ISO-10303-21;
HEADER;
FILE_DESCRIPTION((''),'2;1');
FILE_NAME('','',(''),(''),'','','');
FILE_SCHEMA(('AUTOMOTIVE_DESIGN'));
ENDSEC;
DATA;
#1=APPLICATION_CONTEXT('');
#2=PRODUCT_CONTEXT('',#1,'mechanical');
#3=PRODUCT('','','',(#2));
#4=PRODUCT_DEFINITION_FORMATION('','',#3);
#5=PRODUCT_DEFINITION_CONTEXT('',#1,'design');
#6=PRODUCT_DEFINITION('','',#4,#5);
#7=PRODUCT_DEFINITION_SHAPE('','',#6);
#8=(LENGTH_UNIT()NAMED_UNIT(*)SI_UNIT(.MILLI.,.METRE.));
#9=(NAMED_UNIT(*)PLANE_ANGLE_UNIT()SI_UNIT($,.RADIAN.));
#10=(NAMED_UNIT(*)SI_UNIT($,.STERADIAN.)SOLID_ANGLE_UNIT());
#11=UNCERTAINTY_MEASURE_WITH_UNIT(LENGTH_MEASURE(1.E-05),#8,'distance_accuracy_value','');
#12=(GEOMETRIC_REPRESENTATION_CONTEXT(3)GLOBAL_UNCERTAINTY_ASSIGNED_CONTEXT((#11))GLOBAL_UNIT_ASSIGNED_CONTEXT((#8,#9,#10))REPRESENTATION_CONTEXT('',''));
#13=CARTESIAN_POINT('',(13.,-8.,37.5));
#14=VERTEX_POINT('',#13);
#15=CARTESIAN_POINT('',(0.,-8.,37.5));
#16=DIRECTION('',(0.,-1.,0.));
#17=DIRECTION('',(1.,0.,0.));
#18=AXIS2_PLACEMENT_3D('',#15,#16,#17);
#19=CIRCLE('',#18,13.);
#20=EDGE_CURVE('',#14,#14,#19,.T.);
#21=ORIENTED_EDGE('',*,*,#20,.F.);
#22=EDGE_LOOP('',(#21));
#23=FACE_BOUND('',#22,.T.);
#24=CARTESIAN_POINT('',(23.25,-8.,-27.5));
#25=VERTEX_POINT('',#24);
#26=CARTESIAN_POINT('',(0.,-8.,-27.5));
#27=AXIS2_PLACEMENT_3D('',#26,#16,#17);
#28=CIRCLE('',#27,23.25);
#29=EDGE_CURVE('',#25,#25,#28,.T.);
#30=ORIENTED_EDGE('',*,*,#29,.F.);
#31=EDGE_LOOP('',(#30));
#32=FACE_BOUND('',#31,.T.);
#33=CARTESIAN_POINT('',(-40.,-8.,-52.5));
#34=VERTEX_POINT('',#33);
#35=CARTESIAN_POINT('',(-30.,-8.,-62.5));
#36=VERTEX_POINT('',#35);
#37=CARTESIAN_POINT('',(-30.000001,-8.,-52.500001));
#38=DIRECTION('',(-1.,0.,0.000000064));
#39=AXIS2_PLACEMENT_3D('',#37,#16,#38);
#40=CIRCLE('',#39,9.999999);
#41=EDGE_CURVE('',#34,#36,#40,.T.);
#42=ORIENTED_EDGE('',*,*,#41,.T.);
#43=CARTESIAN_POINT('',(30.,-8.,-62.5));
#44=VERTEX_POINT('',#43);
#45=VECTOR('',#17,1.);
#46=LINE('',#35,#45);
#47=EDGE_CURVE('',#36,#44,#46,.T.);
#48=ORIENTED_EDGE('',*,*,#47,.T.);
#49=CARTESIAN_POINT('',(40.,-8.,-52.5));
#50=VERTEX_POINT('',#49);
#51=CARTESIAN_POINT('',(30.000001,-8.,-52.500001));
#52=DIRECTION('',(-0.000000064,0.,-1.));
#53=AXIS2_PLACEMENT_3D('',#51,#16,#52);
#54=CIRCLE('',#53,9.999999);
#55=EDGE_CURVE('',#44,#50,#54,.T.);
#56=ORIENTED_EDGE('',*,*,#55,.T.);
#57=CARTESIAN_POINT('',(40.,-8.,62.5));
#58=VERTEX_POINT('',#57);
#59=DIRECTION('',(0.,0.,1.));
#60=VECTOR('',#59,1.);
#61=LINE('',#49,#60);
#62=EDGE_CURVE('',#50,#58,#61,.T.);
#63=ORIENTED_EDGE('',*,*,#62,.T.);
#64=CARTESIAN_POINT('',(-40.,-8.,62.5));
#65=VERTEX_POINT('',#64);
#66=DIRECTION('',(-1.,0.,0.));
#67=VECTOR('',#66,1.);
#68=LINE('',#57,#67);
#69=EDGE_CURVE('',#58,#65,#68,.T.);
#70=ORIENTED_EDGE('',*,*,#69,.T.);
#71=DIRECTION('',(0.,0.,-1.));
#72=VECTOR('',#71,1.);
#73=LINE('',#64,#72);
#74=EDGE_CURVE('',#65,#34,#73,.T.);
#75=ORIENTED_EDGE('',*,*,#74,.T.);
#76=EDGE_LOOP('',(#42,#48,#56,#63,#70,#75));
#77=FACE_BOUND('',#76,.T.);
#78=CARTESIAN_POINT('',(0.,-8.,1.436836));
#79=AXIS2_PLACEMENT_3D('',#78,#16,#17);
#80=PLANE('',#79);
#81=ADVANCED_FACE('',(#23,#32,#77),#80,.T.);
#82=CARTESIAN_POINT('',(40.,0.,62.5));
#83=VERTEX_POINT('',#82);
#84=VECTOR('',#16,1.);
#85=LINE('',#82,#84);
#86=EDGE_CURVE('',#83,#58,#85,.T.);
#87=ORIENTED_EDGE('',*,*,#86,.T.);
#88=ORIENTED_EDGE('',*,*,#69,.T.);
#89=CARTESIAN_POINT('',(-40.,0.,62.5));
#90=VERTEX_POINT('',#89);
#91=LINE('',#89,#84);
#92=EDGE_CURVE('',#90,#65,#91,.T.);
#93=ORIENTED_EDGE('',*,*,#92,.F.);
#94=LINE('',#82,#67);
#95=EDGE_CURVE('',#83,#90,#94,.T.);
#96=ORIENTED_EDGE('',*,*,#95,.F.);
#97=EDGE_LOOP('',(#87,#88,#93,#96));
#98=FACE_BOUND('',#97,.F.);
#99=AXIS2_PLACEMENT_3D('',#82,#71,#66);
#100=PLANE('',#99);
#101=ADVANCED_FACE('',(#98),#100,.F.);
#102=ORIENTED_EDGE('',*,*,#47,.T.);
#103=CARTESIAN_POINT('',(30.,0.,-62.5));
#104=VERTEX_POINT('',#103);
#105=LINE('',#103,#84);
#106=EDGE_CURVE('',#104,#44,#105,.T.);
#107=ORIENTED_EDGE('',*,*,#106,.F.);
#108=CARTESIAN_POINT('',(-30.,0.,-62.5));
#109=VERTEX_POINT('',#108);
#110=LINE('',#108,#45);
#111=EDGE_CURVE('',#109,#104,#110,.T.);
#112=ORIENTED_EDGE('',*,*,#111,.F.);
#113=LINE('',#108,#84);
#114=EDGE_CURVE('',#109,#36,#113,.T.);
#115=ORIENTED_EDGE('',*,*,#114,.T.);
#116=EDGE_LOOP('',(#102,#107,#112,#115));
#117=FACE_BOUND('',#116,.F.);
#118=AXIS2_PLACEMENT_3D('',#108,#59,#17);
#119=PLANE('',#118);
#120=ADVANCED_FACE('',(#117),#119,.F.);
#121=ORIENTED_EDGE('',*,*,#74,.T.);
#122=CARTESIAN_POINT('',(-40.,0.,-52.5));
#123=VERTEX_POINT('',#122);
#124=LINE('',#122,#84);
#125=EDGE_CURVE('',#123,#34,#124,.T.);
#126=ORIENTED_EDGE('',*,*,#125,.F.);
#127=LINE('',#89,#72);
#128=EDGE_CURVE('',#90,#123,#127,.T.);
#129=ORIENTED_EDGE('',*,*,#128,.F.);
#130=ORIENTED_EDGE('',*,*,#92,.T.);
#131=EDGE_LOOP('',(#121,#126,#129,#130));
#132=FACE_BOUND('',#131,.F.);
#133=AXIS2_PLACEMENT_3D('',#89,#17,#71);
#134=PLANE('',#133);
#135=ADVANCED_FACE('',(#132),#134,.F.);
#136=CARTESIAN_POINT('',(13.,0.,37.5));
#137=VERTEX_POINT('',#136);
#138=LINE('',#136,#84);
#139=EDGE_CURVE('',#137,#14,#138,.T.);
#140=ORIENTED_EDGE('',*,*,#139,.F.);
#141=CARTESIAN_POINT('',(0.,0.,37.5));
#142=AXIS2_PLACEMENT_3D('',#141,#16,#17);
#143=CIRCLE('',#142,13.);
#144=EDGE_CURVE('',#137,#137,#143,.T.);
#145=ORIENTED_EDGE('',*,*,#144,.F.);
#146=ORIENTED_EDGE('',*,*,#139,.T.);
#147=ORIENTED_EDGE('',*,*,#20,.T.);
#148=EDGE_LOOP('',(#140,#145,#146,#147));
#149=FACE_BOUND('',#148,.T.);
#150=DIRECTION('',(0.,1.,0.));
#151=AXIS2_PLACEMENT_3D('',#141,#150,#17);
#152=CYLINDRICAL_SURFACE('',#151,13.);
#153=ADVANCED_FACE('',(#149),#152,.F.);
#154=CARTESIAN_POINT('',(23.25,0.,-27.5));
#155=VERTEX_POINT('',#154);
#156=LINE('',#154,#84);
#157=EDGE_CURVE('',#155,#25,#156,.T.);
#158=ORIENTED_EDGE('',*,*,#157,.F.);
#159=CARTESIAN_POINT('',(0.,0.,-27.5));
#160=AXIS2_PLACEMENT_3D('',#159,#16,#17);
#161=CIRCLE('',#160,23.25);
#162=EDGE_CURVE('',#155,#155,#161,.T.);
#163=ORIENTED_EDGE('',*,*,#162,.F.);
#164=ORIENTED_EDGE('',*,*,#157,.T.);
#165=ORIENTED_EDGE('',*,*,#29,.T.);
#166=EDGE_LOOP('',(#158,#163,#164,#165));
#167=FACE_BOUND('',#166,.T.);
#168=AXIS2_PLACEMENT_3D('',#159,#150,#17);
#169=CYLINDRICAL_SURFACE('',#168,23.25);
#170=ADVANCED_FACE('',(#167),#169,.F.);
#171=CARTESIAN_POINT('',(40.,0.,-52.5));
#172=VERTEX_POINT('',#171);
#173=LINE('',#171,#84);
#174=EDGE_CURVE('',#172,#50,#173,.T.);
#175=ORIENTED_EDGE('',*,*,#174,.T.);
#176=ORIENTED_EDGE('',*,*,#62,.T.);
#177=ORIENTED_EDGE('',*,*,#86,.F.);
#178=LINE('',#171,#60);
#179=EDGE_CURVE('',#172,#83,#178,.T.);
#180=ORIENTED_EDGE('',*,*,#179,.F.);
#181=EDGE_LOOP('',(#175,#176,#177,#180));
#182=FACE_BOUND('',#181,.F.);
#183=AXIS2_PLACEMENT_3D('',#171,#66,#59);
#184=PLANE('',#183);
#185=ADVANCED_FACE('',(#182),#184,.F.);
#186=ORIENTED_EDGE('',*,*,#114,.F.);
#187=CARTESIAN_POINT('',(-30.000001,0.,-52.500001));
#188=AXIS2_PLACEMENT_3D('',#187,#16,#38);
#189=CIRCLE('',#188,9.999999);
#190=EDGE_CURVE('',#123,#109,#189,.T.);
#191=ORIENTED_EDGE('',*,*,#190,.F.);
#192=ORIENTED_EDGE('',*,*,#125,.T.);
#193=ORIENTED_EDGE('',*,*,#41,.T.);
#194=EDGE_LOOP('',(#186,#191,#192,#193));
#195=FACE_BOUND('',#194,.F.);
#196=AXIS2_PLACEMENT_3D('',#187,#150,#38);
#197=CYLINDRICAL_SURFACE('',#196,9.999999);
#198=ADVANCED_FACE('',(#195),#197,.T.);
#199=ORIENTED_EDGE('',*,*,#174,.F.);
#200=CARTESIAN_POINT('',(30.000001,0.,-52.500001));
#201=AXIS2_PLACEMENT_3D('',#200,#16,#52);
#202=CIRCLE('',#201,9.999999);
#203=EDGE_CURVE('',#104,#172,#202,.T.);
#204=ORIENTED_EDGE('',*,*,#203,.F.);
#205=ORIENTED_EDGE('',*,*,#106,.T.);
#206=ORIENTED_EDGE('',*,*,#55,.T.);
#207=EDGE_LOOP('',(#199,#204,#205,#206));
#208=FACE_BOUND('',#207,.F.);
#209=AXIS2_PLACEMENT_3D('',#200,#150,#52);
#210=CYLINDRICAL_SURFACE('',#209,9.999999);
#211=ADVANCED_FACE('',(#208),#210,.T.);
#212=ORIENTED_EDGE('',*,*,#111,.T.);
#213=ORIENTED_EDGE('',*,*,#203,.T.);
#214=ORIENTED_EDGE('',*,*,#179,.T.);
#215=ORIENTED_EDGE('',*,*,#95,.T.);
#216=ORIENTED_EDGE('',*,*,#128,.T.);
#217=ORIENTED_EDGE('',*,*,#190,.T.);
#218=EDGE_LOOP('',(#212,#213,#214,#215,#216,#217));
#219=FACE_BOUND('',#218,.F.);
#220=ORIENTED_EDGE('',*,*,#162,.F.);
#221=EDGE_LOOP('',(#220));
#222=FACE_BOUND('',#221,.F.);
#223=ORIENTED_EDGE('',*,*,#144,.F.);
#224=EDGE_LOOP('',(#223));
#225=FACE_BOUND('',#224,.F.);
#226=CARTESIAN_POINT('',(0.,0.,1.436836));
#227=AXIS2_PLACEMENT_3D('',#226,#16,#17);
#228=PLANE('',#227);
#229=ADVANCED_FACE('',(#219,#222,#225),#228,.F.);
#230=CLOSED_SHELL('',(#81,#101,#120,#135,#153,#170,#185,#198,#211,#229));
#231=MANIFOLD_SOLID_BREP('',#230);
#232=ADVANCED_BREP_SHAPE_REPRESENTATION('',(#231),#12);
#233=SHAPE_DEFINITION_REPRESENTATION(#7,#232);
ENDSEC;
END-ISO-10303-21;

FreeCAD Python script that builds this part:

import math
import FreeCAD as App
import Part
import Sketcher
Q = App.Units.Quantity

doc = App.newDocument("Part")
body = doc.addObject("PartDesign::Body", "Body")

# Sketch on XZ plane
sketch1 = body.newObject("Sketcher::SketchObject", "Sketch")
sketch1.AttachmentSupport = (doc.getObject("XZ_Plane"), [""])
sketch1.MapMode = "FlatFace"
sketch1.addGeometry(Part.LineSegment(App.Vector(40, -52, 0), App.Vector(40, 62, 0)), False)
sketch1.addGeometry(Part.LineSegment(App.Vector(40, 62, 0), App.Vector(-40, 62, 0)), False)
sketch1.addGeometry(Part.LineSegment(App.Vector(-40, 62, 0), App.Vector(-40, -52, 0)), False)
sketch1.addGeometry(Part.ArcOfCircle(Part.Circle(App.Vector(-30, -53, 0), App.Vector(0, 0, 1), 10), math.radians(180), math.radians(270)), False)
sketch1.addGeometry(Part.LineSegment(App.Vector(-30, -62, 0), App.Vector(30, -62, 0)), False)
sketch1.addGeometry(Part.ArcOfCircle(Part.Circle(App.Vector(30, -53, 0), App.Vector(0, 0, 1), 10), math.radians(-90), math.radians(0)), False)
sketch1.addGeometry(Part.Circle(App.Vector(0, -28, 0), App.Vector(0, 0, 1), 23), False)
sketch1.addGeometry(Part.Circle(App.Vector(0, 38, 0), App.Vector(0, 0, 1), 13), False)
sketch1.addConstraint(Sketcher.Constraint("Coincident", 0, 2, 1, 1))
sketch1.addConstraint(Sketcher.Constraint("Coincident", 1, 2, 2, 1))
sketch1.addConstraint(Sketcher.Constraint("Tangent", 2, 2, 3, 1))
sketch1.addConstraint(Sketcher.Constraint("Tangent", 3, 2, 4, 1))
sketch1.addConstraint(Sketcher.Constraint("Tangent", 4, 2, 5, 1))
sketch1.addConstraint(Sketcher.Constraint("Tangent", 5, 2, 0, 1))
sketch1.addConstraint(Sketcher.Constraint("Vertical", 0))
sketch1.addConstraint(Sketcher.Constraint("Horizontal", 1))
sketch1.addConstraint(Sketcher.Constraint("Vertical", 2))
sketch1.addConstraint(Sketcher.Constraint("Horizontal", 4))
sketch1.addConstraint(Sketcher.Constraint("Equal", 3, 5))
sketch1.addConstraint(Sketcher.Constraint("PointOnObject", 6, 3, -2))
sketch1.addConstraint(Sketcher.Constraint("PointOnObject", 7, 3, -2))
sketch1.addConstraint(Sketcher.Constraint("Diameter", 7, Q("26 mm")))
sketch1.addConstraint(Sketcher.Constraint("Radius", 3, Q("9.999999 mm")))
sketch1.addConstraint(Sketcher.Constraint("Diameter", 6, Q("46.5 mm")))
sketch1.addConstraint(Sketcher.Constraint("DistanceX", 1, 2, 1, 1, Q("80 mm")))
sketch1.addConstraint(Sketcher.Constraint("DistanceY", 0, 1, 0, 2, Q("115 mm")))
sketch1.addConstraint(Sketcher.Constraint("DistanceX", 3, 3, -1, 1, Q("30.000001 mm")))
sketch1.addConstraint(Sketcher.Constraint("DistanceY", 3, 3, 6, 3, Q("25.000001 mm")))
sketch1.addConstraint(Sketcher.Constraint("DistanceY", 6, 3, 7, 3, Q("65 mm")))
sketch1.addConstraint(Sketcher.Constraint("DistanceY", 3, 3, -1, 1, Q("52.500001 mm")))
pad1 = body.newObject("PartDesign::Pad", "Pad")
pad1.Profile = sketch1
pad1.Length = 8

doc.recompute()
